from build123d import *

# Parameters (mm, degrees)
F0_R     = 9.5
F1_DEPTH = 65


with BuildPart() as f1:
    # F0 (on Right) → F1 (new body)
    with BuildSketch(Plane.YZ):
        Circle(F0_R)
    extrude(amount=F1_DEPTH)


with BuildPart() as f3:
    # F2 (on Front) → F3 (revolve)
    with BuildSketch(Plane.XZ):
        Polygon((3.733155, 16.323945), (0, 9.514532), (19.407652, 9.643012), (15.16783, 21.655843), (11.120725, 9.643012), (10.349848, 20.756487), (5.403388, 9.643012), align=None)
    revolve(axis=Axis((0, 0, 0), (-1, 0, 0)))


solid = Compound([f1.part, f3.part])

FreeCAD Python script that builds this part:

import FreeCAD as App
import Part
import Sketcher

V = App.Vector


def add_polygon(sketch, points):
    """Adds a closed chain of lines whose ends are joined by coincident constraints."""
    first, n = sketch.GeometryCount, len(points)
    for a, b in zip(points, points[1:] + points[:1]):
        sketch.addGeometry(Part.LineSegment(App.Vector(*a, 0), App.Vector(*b, 0)), False)
    for i in range(n):
        sketch.addConstraint(Sketcher.Constraint("Coincident", first + i, 2, first + (i + 1) % n, 1))

doc = App.newDocument("Part")
params = doc.addObject("Spreadsheet::Sheet", "Params")
for row, (alias, value) in enumerate([
    ("sketch1_diameter", "19 mm"),
    ("pad1_length", "65 mm"),
    ("revolution_angle", "360 deg"),
], start=1):
    params.set(f"A{row}", alias)
    params.set(f"B{row}", "=" + value)
    params.setAlias(f"B{row}", alias)

body = doc.addObject("PartDesign::Body", "Body")

# Sketch on YZ plane
sketch1 = body.newObject("Sketcher::SketchObject", "Sketch")
sketch1.AttachmentSupport = (doc.getObject("YZ_Plane"), [""])
sketch1.MapMode = "FlatFace"
sketch1.addGeometry(Part.Circle(V(0, 0, 0), V(0, 0, 1), 10), False)
sketch1.addConstraint(Sketcher.Constraint("Coincident", 0, 3, -1, 1))
sketch1.addConstraint(Sketcher.Constraint("Diameter", 0, 19.0))
sketch1.setExpression("Constraints[1]", "Params.sketch1_diameter")
pad1 = body.newObject("PartDesign::Pad", "Pad")
pad1.Profile = sketch1
pad1.setExpression("Length", "Params.pad1_length")
body2 = doc.addObject("PartDesign::Body", "Body001")

# Sketch on XZ plane
sketch2 = body2.newObject("Sketcher::SketchObject", "Sketch001")
sketch2.AttachmentSupport = (doc.getObject("XZ_Plane001"), [""])
sketch2.MapMode = "FlatFace"
add_polygon(sketch2, [(4, 16), (0, 10), (19, 10), (15, 22), (11, 10), (10, 21), (5, 10)])  # lines 0-6
sketch2.addConstraint(Sketcher.Constraint("PointOnObject", 0, 2, -2))
sketch2.addConstraint(Sketcher.Constraint("Horizontal", 1, 2, 3, 2))
sketch2.addConstraint(Sketcher.Constraint("Horizontal", 3, 2, 5, 2))
sketch2.addConstraint(Sketcher.Constraint("Distance", 0, 7.765601))
sketch2.addConstraint(Sketcher.Constraint("DistanceY", 6, 2, 2, 2, 5.331898))
sketch2.addConstraint(Sketcher.Constraint("Distance", 2, 12.739082))
sketch2.addConstraint(Sketcher.Constraint("Distance", 4, 11.140179))
sketch2.addConstraint(Sketcher.Constraint("Distance", 5, 12.164571))
sketch2.addConstraint(Sketcher.Constraint("Distance", 6, 6.886548))
sketch2.addConstraint(Sketcher.Constraint("DistanceX", -1, 1, 1, 2, 19.407652))
sketch2.addConstraint(Sketcher.Constraint("DistanceX", -1, 1, 2, 2, 15.16783))
sketch2.addConstraint(Sketcher.Constraint("DistanceY", 0, 2, 1, 2, 0.12848))
sketch2.addConstraint(Sketcher.Constraint("DistanceX", 5, 2, 4, 2, 4.94646))
sketch2.addConstraint(Sketcher.Constraint("DistanceY", -1, 1, 0, 2, 9.514532))
revolution = body2.newObject("PartDesign::Revolution", "Revolution")
revolution.Profile = sketch2
revolution.ReferenceAxis = (sketch2, ["H_Axis"])
revolution.setExpression("Angle", "Params.revolution_angle")

doc.recompute()
